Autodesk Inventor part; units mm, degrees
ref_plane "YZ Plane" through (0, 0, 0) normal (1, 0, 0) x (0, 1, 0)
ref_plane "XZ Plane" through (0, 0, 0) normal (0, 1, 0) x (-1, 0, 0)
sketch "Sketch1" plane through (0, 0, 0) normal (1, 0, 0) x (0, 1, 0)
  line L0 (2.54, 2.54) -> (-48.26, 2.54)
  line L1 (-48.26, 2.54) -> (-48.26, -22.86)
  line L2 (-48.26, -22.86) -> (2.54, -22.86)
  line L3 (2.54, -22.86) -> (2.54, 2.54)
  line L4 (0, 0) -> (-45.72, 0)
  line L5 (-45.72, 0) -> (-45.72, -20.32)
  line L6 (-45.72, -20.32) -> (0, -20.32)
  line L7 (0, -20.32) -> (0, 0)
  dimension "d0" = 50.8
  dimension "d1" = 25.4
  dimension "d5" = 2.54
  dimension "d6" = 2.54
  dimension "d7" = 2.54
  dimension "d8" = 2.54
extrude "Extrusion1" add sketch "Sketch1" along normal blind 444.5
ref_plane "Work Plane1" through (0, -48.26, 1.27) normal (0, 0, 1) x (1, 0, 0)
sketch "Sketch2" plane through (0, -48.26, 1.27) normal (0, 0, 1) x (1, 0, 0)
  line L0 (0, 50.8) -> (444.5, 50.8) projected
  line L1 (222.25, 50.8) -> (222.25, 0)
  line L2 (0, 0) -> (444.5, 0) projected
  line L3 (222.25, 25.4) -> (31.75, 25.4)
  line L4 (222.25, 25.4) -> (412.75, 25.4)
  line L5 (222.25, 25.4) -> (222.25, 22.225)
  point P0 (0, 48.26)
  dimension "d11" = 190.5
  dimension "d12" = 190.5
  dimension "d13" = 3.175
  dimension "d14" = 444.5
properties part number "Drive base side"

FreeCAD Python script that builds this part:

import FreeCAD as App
import Part
import Sketcher
Q = App.Units.Quantity

doc = App.newDocument("Part")
body = doc.addObject("PartDesign::Body", "Body")

sketch1 = body.newObject("Sketcher::SketchObject", "Sketch")
sketch1.AttachmentSupport = (doc.getObject("YZ_Plane"), [""])
sketch1.MapMode = "FlatFace"
sketch1.addGeometry(Part.LineSegment(App.Vector(3, -23, 0), App.Vector(3, 3, 0)), False)
sketch1.addGeometry(Part.LineSegment(App.Vector(3, 3, 0), App.Vector(-48, 3, 0)), False)
sketch1.addGeometry(Part.LineSegment(App.Vector(-48, 3, 0), App.Vector(-48, -23, 0)), False)
sketch1.addGeometry(Part.LineSegment(App.Vector(-48, -23, 0), App.Vector(3, -23, 0)), False)
sketch1.addGeometry(Part.LineSegment(App.Vector(-46, 0, 0), App.Vector(0, 0, 0)), False)
sketch1.addGeometry(Part.LineSegment(App.Vector(0, 0, 0), App.Vector(0, -20, 0)), False)
sketch1.addGeometry(Part.LineSegment(App.Vector(0, -20, 0), App.Vector(-46, -20, 0)), False)
sketch1.addGeometry(Part.LineSegment(App.Vector(-46, -20, 0), App.Vector(-46, 0, 0)), False)
sketch1.addConstraint(Sketcher.Constraint("Coincident", 0, 2, 1, 1))
sketch1.addConstraint(Sketcher.Constraint("Coincident", 1, 2, 2, 1))
sketch1.addConstraint(Sketcher.Constraint("Coincident", 2, 2, 3, 1))
sketch1.addConstraint(Sketcher.Constraint("Coincident", 3, 2, 0, 1))
sketch1.addConstraint(Sketcher.Constraint("Coincident", 4, 2, 5, 1))
sketch1.addConstraint(Sketcher.Constraint("Coincident", 5, 2, 6, 1))
sketch1.addConstraint(Sketcher.Constraint("Coincident", 6, 2, 7, 1))
sketch1.addConstraint(Sketcher.Constraint("Coincident", 7, 2, 4, 1))
sketch1.addConstraint(Sketcher.Constraint("Vertical", 0))
sketch1.addConstraint(Sketcher.Constraint("Horizontal", 1))
sketch1.addConstraint(Sketcher.Constraint("Vertical", 2))
sketch1.addConstraint(Sketcher.Constraint("Horizontal", 3))
sketch1.addConstraint(Sketcher.Constraint("Horizontal", 4))
sketch1.addConstraint(Sketcher.Constraint("Vertical", 5))
sketch1.addConstraint(Sketcher.Constraint("Horizontal", 6))
sketch1.addConstraint(Sketcher.Constraint("Vertical", 7))
sketch1.addConstraint(Sketcher.Constraint("Coincident", 4, 2, -1, 1))
sketch1.addConstraint(Sketcher.Constraint("DistanceX", 1, 2, 1, 1, Q("2 in")))
sketch1.addConstraint(Sketcher.Constraint("DistanceY", 0, 1, 0, 2, Q("1 in")))
sketch1.addConstraint(Sketcher.Constraint("DistanceX", -1, 1, 0, 2, Q("0.1 in")))
sketch1.addConstraint(Sketcher.Constraint("DistanceY", -1, 1, 0, 2, Q("0.1 in")))
sketch1.addConstraint(Sketcher.Constraint("DistanceY", 3, 2, 5, 2, Q("0.1 in")))
sketch1.addConstraint(Sketcher.Constraint("DistanceX", 2, 2, 6, 2, Q("0.1 in")))
pad1 = body.newObject("PartDesign::Pad", "Pad")
pad1.Profile = sketch1
pad1.Length = Q("17.5 in")

doc.recompute()
